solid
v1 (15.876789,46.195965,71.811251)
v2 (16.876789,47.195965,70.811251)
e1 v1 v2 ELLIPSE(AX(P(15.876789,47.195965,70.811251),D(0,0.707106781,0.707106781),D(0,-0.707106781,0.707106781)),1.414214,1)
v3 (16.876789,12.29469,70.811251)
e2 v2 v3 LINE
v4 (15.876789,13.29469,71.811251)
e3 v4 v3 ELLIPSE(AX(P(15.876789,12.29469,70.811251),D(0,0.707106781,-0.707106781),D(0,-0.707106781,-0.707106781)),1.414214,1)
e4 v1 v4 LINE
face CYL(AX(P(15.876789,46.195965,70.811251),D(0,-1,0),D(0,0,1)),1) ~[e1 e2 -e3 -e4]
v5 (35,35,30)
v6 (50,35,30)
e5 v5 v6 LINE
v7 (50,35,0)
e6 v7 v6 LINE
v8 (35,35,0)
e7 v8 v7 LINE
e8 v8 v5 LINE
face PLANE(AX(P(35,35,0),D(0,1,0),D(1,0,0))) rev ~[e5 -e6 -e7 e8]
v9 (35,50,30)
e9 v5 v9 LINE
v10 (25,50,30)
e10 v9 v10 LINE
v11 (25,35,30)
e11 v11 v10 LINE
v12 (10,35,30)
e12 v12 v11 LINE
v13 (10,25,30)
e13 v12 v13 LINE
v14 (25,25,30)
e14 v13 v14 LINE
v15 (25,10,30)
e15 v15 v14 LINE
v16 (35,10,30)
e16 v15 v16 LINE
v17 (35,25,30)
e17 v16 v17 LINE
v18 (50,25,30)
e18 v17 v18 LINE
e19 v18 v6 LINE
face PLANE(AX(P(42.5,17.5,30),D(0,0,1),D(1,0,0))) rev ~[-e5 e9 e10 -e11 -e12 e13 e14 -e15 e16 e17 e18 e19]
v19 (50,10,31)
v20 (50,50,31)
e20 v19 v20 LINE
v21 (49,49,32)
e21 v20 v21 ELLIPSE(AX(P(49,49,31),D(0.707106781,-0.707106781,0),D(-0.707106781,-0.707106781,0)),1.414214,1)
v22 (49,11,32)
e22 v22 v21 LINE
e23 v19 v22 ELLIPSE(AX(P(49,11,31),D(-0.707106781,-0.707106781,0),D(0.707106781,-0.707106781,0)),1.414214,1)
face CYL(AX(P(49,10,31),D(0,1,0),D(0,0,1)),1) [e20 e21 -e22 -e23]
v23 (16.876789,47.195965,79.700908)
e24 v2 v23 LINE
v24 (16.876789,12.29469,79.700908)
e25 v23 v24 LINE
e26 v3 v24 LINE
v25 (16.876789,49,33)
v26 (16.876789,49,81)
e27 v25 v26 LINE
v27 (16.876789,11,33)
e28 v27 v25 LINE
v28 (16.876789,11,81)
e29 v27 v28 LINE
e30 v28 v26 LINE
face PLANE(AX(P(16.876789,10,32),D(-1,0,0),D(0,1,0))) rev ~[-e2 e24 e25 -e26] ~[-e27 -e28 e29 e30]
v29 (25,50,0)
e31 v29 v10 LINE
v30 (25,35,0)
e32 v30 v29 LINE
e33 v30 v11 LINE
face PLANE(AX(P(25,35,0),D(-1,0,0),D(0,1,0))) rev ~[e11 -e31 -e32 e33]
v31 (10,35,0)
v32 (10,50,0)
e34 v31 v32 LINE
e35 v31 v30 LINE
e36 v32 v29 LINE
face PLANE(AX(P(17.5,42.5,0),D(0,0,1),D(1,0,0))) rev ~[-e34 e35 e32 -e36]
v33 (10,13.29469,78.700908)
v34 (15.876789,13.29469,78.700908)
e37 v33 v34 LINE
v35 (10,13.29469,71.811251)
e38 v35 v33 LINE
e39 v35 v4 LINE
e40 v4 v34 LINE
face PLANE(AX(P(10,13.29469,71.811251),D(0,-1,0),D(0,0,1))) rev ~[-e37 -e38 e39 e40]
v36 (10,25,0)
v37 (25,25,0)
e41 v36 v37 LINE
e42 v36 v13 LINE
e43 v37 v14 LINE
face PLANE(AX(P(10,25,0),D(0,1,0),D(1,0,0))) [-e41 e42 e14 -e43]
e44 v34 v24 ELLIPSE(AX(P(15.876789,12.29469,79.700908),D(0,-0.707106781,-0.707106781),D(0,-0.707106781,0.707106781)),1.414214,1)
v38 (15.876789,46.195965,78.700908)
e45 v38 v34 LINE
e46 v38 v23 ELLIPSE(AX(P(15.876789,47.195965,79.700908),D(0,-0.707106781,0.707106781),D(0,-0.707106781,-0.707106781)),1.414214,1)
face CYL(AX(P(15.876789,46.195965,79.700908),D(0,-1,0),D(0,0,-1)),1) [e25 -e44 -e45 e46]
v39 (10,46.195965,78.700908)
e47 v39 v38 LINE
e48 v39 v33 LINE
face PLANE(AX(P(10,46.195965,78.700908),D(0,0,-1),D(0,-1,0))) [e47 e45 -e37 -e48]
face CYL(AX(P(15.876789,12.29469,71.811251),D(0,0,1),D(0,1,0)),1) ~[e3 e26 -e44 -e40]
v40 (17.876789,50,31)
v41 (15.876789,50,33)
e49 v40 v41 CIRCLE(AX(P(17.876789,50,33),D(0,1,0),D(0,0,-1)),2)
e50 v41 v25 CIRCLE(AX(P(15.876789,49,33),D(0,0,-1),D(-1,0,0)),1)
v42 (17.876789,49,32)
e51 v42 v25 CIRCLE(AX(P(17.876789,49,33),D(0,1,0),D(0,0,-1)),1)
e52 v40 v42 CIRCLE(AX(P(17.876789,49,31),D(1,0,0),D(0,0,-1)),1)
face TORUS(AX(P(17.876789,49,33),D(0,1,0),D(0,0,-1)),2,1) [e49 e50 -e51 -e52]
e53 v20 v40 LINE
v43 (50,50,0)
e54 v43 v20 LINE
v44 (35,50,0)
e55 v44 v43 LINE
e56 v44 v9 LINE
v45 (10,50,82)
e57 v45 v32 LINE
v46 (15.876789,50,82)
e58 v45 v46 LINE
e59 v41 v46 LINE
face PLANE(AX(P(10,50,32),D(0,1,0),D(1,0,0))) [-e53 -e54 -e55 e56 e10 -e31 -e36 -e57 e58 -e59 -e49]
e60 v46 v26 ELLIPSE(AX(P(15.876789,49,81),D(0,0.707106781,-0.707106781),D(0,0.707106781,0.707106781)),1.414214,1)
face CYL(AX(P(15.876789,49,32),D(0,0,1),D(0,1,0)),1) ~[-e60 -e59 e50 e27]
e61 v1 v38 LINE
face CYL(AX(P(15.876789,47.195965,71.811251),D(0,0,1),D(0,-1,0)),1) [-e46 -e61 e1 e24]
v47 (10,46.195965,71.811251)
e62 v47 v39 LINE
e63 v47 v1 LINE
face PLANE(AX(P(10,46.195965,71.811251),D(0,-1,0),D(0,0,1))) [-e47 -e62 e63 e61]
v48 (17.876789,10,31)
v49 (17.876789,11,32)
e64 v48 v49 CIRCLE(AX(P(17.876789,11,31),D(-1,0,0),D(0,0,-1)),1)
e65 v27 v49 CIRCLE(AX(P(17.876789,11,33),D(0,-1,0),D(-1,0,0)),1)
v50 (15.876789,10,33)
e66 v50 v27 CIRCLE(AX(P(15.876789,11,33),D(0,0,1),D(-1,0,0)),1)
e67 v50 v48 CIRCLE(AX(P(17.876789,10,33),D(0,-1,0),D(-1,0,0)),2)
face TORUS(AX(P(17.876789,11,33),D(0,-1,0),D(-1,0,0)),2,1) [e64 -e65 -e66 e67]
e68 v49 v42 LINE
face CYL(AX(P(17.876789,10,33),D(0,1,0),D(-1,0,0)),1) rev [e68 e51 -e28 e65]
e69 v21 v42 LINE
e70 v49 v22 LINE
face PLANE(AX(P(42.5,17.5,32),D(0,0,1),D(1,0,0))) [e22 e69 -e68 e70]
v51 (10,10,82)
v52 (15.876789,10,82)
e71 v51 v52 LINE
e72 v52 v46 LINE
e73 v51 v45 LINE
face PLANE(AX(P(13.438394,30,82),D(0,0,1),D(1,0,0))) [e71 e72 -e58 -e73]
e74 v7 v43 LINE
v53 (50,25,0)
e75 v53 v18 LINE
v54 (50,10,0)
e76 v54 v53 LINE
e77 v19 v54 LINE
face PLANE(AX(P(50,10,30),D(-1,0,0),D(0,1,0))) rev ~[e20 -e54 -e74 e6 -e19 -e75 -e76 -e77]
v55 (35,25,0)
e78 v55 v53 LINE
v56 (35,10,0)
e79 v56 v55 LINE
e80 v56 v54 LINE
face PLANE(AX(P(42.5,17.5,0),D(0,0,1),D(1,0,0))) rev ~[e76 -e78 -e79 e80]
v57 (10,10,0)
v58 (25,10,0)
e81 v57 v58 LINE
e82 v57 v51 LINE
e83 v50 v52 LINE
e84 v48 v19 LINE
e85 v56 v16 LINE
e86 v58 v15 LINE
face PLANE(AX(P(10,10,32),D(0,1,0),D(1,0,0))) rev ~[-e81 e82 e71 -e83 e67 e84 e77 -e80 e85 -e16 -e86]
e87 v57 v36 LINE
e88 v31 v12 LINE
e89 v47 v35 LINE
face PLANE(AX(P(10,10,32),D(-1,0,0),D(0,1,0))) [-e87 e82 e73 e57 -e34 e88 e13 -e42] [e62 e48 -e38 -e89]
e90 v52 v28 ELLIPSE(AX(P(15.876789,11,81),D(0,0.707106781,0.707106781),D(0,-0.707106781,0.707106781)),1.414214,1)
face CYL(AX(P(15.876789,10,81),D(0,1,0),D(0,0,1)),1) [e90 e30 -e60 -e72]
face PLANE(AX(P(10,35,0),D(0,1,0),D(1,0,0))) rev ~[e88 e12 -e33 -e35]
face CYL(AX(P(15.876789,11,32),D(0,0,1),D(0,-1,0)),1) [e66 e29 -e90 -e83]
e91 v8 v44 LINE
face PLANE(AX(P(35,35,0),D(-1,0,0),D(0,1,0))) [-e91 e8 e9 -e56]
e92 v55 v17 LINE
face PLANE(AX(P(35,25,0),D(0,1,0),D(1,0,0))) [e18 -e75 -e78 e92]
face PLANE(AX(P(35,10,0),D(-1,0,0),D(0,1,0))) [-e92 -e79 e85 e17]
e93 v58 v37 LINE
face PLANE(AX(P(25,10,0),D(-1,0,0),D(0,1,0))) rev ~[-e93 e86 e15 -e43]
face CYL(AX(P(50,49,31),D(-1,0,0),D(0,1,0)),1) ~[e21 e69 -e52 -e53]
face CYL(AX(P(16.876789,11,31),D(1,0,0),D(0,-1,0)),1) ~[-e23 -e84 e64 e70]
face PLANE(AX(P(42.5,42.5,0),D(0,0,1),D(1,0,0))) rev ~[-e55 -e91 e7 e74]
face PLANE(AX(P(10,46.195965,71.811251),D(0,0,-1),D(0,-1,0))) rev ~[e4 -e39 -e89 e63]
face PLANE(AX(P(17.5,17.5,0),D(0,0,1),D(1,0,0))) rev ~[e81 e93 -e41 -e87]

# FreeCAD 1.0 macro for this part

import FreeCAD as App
import Part
import Sketcher
Q = App.Units.Quantity


def edges_at(feature, points):
    """Names of the edges that pass closest to the given points."""
    edges = feature.Shape.Edges
    near = lambda p: min(range(len(edges)), key=lambda i: edges[i].distToShape(Part.Vertex(*p))[0])
    return sorted({f"Edge{near(p) + 1}" for p in points})

doc = App.newDocument("Part")
params = doc.addObject("Spreadsheet::Sheet", "Params")
for row, (alias, value) in enumerate([
    ("sketch1_width", "15 mm"),
    ("pad1_length", "30 mm"),
    ("sketch2_width", "15 mm"),
    ("pad2_length", "30 mm"),
    ("sketch3_width", "15 mm"),
    ("pad3_length", "30 mm"),
    ("sketch4_width", "15 mm"),
    ("pad4_length", "30 mm"),
    ("sketch5_width", "40 mm"),
    ("pad5_length", "2 mm"),
    ("sketch6_height", "40 mm"),
    ("pad6_length", "50 mm"),
    ("pocket1_length", "30 mm"),
    ("fillet_radius", "1 mm"),
], start=1):
    params.set(f"A{row}", alias)
    params.set(f"B{row}", "=" + value)
    params.setAlias(f"B{row}", alias)

body = doc.addObject("PartDesign::Body", "Body")

sketch1 = body.newObject("Sketcher::SketchObject", "Sketch")
sketch1.AttachmentSupport = (doc.getObject("XY_Plane"), [""])
sketch1.MapMode = "FlatFace"
sketch1.addGeometry(Part.LineSegment(App.Vector(35, 25, 0), App.Vector(35, 10, 0)), False)
sketch1.addGeometry(Part.LineSegment(App.Vector(35, 10, 0), App.Vector(50, 10, 0)), False)
sketch1.addGeometry(Part.LineSegment(App.Vector(50, 10, 0), App.Vector(50, 25, 0)), False)
sketch1.addGeometry(Part.LineSegment(App.Vector(50, 25, 0), App.Vector(35, 25, 0)), False)
sketch1.addConstraint(Sketcher.Constraint("Coincident", 0, 2, 1, 1))
sketch1.addConstraint(Sketcher.Constraint("Coincident", 1, 2, 2, 1))
sketch1.addConstraint(Sketcher.Constraint("Coincident", 2, 2, 3, 1))
sketch1.addConstraint(Sketcher.Constraint("Coincident", 3, 2, 0, 1))
sketch1.addConstraint(Sketcher.Constraint("Vertical", 0))
sketch1.addConstraint(Sketcher.Constraint("Horizontal", 1))
sketch1.addConstraint(Sketcher.Constraint("Vertical", 2))
sketch1.addConstraint(Sketcher.Constraint("Horizontal", 3))
sketch1.addConstraint(Sketcher.Constraint("Equal", 3, 0))
sketch1.addConstraint(Sketcher.Constraint("DistanceX", 1, 1, 1, 2, Q("15 mm")))
sketch1.addConstraint(Sketcher.Constraint("DistanceX", -1, 1, 0, 2, Q("35 mm")))
sketch1.addConstraint(Sketcher.Constraint("DistanceY", -1, 1, 0, 2, Q("10 mm")))
sketch1.setExpression("Constraints[9]", "Params.sketch1_width")
pad1 = body.newObject("PartDesign::Pad", "Pad")
pad1.Profile = sketch1
pad1.setExpression("Length", "Params.pad1_length")
body2 = doc.addObject("PartDesign::Body", "Body001")

sketch2 = body2.newObject("Sketcher::SketchObject", "Sketch001")
sketch2.AttachmentSupport = (doc.getObject("XY_Plane001"), [""])
sketch2.MapMode = "FlatFace"
sketch2.addGeometry(Part.LineSegment(App.Vector(10, 25, 0), App.Vector(10, 10, 0)), False)
sketch2.addGeometry(Part.LineSegment(App.Vector(10, 10, 0), App.Vector(25, 10, 0)), False)
sketch2.addGeometry(Part.LineSegment(App.Vector(25, 10, 0), App.Vector(25, 25, 0)), False)
sketch2.addGeometry(Part.LineSegment(App.Vector(25, 25, 0), App.Vector(10, 25, 0)), False)
sketch2.addConstraint(Sketcher.Constraint("Coincident", 0, 2, 1, 1))
sketch2.addConstraint(Sketcher.Constraint("Coincident", 1, 2, 2, 1))
sketch2.addConstraint(Sketcher.Constraint("Coincident", 2, 2, 3, 1))
sketch2.addConstraint(Sketcher.Constraint("Coincident", 3, 2, 0, 1))
sketch2.addConstraint(Sketcher.Constraint("Vertical", 0))
sketch2.addConstraint(Sketcher.Constraint("Horizontal", 1))
sketch2.addConstraint(Sketcher.Constraint("Vertical", 2))
sketch2.addConstraint(Sketcher.Constraint("Horizontal", 3))
sketch2.addConstraint(Sketcher.Constraint("Equal", 3, 0))
sketch2.addConstraint(Sketcher.Constraint("DistanceX", 1, 1, 1, 2, Q("15 mm")))
sketch2.addConstraint(Sketcher.Constraint("DistanceX", -1, 1, 0, 2, Q("10 mm")))
sketch2.addConstraint(Sketcher.Constraint("DistanceY", -1, 1, 0, 2, Q("10 mm")))
sketch2.setExpression("Constraints[9]", "Params.sketch2_width")
pad2 = body2.newObject("PartDesign::Pad", "Pad001")
pad2.Profile = sketch2
pad2.setExpression("Length", "Params.pad2_length")
body3 = doc.addObject("PartDesign::Body", "Body002")

sketch3 = body3.newObject("Sketcher::SketchObject", "Sketch002")
sketch3.AttachmentSupport = (doc.getObject("XY_Plane002"), [""])
sketch3.MapMode = "FlatFace"
sketch3.addGeometry(Part.LineSegment(App.Vector(10, 50, 0), App.Vector(10, 35, 0)), False)
sketch3.addGeometry(Part.LineSegment(App.Vector(10, 35, 0), App.Vector(25, 35, 0)), False)
sketch3.addGeometry(Part.LineSegment(App.Vector(25, 35, 0), App.Vector(25, 50, 0)), False)
sketch3.addGeometry(Part.LineSegment(App.Vector(25, 50, 0), App.Vector(10, 50, 0)), False)
sketch3.addConstraint(Sketcher.Constraint("Coincident", 0, 2, 1, 1))
sketch3.addConstraint(Sketcher.Constraint("Coincident", 1, 2, 2, 1))
sketch3.addConstraint(Sketcher.Constraint("Coincident", 2, 2, 3, 1))
sketch3.addConstraint(Sketcher.Constraint("Coincident", 3, 2, 0, 1))
sketch3.addConstraint(Sketcher.Constraint("Vertical", 0))
sketch3.addConstraint(Sketcher.Constraint("Horizontal", 1))
sketch3.addConstraint(Sketcher.Constraint("Vertical", 2))
sketch3.addConstraint(Sketcher.Constraint("Horizontal", 3))
sketch3.addConstraint(Sketcher.Constraint("Equal", 3, 0))
sketch3.addConstraint(Sketcher.Constraint("DistanceX", 1, 1, 1, 2, Q("15 mm")))
sketch3.addConstraint(Sketcher.Constraint("DistanceX", -1, 1, 0, 2, Q("10 mm")))
sketch3.addConstraint(Sketcher.Constraint("DistanceY", -1, 1, 0, 2, Q("35 mm")))
sketch3.setExpression("Constraints[9]", "Params.sketch3_width")
pad3 = body3.newObject("PartDesign::Pad", "Pad002")
pad3.Profile = sketch3
pad3.setExpression("Length", "Params.pad3_length")
body4 = doc.addObject("PartDesign::Body", "Body003")

sketch4 = body4.newObject("Sketcher::SketchObject", "Sketch003")
sketch4.AttachmentSupport = (doc.getObject("XY_Plane003"), [""])
sketch4.MapMode = "FlatFace"
sketch4.addGeometry(Part.LineSegment(App.Vector(35, 50, 0), App.Vector(35, 35, 0)), False)
sketch4.addGeometry(Part.LineSegment(App.Vector(35, 35, 0), App.Vector(50, 35, 0)), False)
sketch4.addGeometry(Part.LineSegment(App.Vector(50, 35, 0), App.Vector(50, 50, 0)), False)
sketch4.addGeometry(Part.LineSegment(App.Vector(50, 50, 0), App.Vector(35, 50, 0)), False)
sketch4.addConstraint(Sketcher.Constraint("Coincident", 0, 2, 1, 1))
sketch4.addConstraint(Sketcher.Constraint("Coincident", 1, 2, 2, 1))
sketch4.addConstraint(Sketcher.Constraint("Coincident", 2, 2, 3, 1))
sketch4.addConstraint(Sketcher.Constraint("Coincident", 3, 2, 0, 1))
sketch4.addConstraint(Sketcher.Constraint("Vertical", 0))
sketch4.addConstraint(Sketcher.Constraint("Horizontal", 1))
sketch4.addConstraint(Sketcher.Constraint("Vertical", 2))
sketch4.addConstraint(Sketcher.Constraint("Horizontal", 3))
sketch4.addConstraint(Sketcher.Constraint("Equal", 3, 0))
sketch4.addConstraint(Sketcher.Constraint("DistanceX", 1, 1, 1, 2, Q("15 mm")))
sketch4.addConstraint(Sketcher.Constraint("DistanceX", -1, 1, 0, 2, Q("35 mm")))
sketch4.addConstraint(Sketcher.Constraint("DistanceY", -1, 1, 0, 2, Q("35 mm")))
sketch4.setExpression("Constraints[9]", "Params.sketch4_width")
pad4 = body4.newObject("PartDesign::Pad", "Pad003")
pad4.Profile = sketch4
pad4.setExpression("Length", "Params.pad4_length")
body.AllowCompound = True
doc.recompute()

boolean = body.newObject("PartDesign::Boolean", "Boolean")
boolean.Type = "Fuse"
boolean.addObjects([body2])
doc.recompute()

boolean2 = body.newObject("PartDesign::Boolean", "Boolean001")
boolean2.Type = "Fuse"
boolean2.addObjects([body3])
doc.recompute()

boolean3 = body.newObject("PartDesign::Boolean", "Boolean002")
boolean3.Type = "Fuse"
boolean3.addObjects([body4])

sketch5 = body.newObject("Sketcher::SketchObject", "Sketch004")
sketch5.AttachmentSupport = (doc.getObject("XY_Plane"), [""])
sketch5.MapMode = "FlatFace"
sketch5.AttachmentOffset = App.Placement(App.Vector(0, 0, 30), App.Rotation())
sketch5.addGeometry(Part.LineSegment(App.Vector(50, 10, 0), App.Vector(50, 50, 0)), False)
sketch5.addGeometry(Part.LineSegment(App.Vector(50, 50, 0), App.Vector(10, 50, 0)), False)
sketch5.addGeometry(Part.LineSegment(App.Vector(10, 50, 0), App.Vector(10, 10, 0)), False)
sketch5.addGeometry(Part.LineSegment(App.Vector(10, 10, 0), App.Vector(50, 10, 0)), False)
sketch5.addConstraint(Sketcher.Constraint("Coincident", 0, 2, 1, 1))
sketch5.addConstraint(Sketcher.Constraint("Coincident", 1, 2, 2, 1))
sketch5.addConstraint(Sketcher.Constraint("Coincident", 2, 2, 3, 1))
sketch5.addConstraint(Sketcher.Constraint("Coincident", 3, 2, 0, 1))
sketch5.addConstraint(Sketcher.Constraint("Vertical", 0))
sketch5.addConstraint(Sketcher.Constraint("Horizontal", 1))
sketch5.addConstraint(Sketcher.Constraint("Vertical", 2))
sketch5.addConstraint(Sketcher.Constraint("Horizontal", 3))
sketch5.addConstraint(Sketcher.Constraint("Equal", 3, 0))
sketch5.addConstraint(Sketcher.Constraint("DistanceX", 1, 2, 1, 1, Q("40 mm")))
sketch5.addConstraint(Sketcher.Constraint("DistanceX", -1, 1, 0, 2, Q("50 mm")))
sketch5.addConstraint(Sketcher.Constraint("DistanceY", -1, 1, 0, 2, Q("50 mm")))
sketch5.setExpression("Constraints[9]", "Params.sketch5_width")
pad5 = body.newObject("PartDesign::Pad", "Pad004")
pad5.Profile = sketch5
pad5.setExpression("Length", "Params.pad5_length")

sketch6 = body.newObject("Sketcher::SketchObject", "Sketch005")
sketch6.AttachmentSupport = (doc.getObject("XY_Plane"), [""])
sketch6.MapMode = "FlatFace"
sketch6.AttachmentOffset = App.Placement(App.Vector(0, 0, 32), App.Rotation())
sketch6.addGeometry(Part.LineSegment(App.Vector(10, 50, 0), App.Vector(10, 10, 0)), False)
sketch6.addGeometry(Part.LineSegment(App.Vector(10, 10, 0), App.Vector(17, 10, 0)), False)
sketch6.addGeometry(Part.LineSegment(App.Vector(17, 10, 0), App.Vector(17, 50, 0)), False)
sketch6.addGeometry(Part.LineSegment(App.Vector(17, 50, 0), App.Vector(10, 50, 0)), False)
sketch6.addConstraint(Sketcher.Constraint("Coincident", 0, 2, 1, 1))
sketch6.addConstraint(Sketcher.Constraint("Coincident", 1, 2, 2, 1))
sketch6.addConstraint(Sketcher.Constraint("Coincident", 2, 2, 3, 1))
sketch6.addConstraint(Sketcher.Constraint("Coincident", 3, 2, 0, 1))
sketch6.addConstraint(Sketcher.Constraint("Vertical", 0))
sketch6.addConstraint(Sketcher.Constraint("Horizontal", 1))
sketch6.addConstraint(Sketcher.Constraint("Vertical", 2))
sketch6.addConstraint(Sketcher.Constraint("Horizontal", 3))
sketch6.addConstraint(Sketcher.Constraint("DistanceY", 0, 2, 0, 1, Q("40 mm")))
sketch6.addConstraint(Sketcher.Constraint("DistanceX", -1, 1, 0, 2, Q("10 mm")))
sketch6.addConstraint(Sketcher.Constraint("DistanceY", -1, 1, 0, 2, Q("10 mm")))
sketch6.addConstraint(Sketcher.Constraint("DistanceX", 1, 1, 1, 2, Q("6.876789 mm")))
sketch6.setExpression("Constraints[8]", "Params.sketch6_height")
pad6 = body.newObject("PartDesign::Pad", "Pad005")
pad6.Profile = sketch6
pad6.setExpression("Length", "Params.pad6_length")

sketch7 = body.newObject("Sketcher::SketchObject", "Sketch006")
sketch7.AttachmentSupport = (doc.getObject("YZ_Plane"), [""])
sketch7.MapMode = "FlatFace"
sketch7.AttachmentOffset = App.Placement(App.Vector(0, 0, 10), App.Rotation())
sketch7.addGeometry(Part.LineSegment(App.Vector(46, 79, 0), App.Vector(46, 72, 0)), False)
sketch7.addGeometry(Part.LineSegment(App.Vector(46, 72, 0), App.Vector(13, 72, 0)), False)
sketch7.addGeometry(Part.LineSegment(App.Vector(13, 72, 0), App.Vector(13, 79, 0)), False)
sketch7.addGeometry(Part.LineSegment(App.Vector(13, 79, 0), App.Vector(46, 79, 0)), False)
sketch7.addConstraint(Sketcher.Constraint("Coincident", 0, 2, 1, 1))
sketch7.addConstraint(Sketcher.Constraint("Coincident", 1, 2, 2, 1))
sketch7.addConstraint(Sketcher.Constraint("Coincident", 2, 2, 3, 1))
sketch7.addConstraint(Sketcher.Constraint("Coincident", 3, 2, 0, 1))
sketch7.addConstraint(Sketcher.Constraint("Vertical", 0))
sketch7.addConstraint(Sketcher.Constraint("Horizontal", 1))
sketch7.addConstraint(Sketcher.Constraint("Vertical", 2))
sketch7.addConstraint(Sketcher.Constraint("Horizontal", 3))
sketch7.addConstraint(Sketcher.Constraint("DistanceX", 1, 2, 1, 1, Q("32.901275 mm")))
sketch7.addConstraint(Sketcher.Constraint("DistanceY", 0, 2, 0, 1, Q("6.889656 mm")))
sketch7.addConstraint(Sketcher.Constraint("DistanceY", -1, 1, 0, 2, Q("71.811251 mm")))
sketch7.addConstraint(Sketcher.Constraint("DistanceX", -1, 1, 1, 2, Q("13.29469 mm")))
pocket1 = body.newObject("PartDesign::Pocket", "Pocket")
pocket1.Profile = sketch7
pocket1.setExpression("Length", "Params.pocket1_length")
pocket1.Reversed = True
doc.recompute()

fillet = body.newObject("PartDesign::Fillet", "Fillet")
fillet.Base = (pocket1, edges_at(pocket1, [
    (33.438, 10, 32),
    (16.877, 30, 32),
    (33.438, 50, 32),
    (50, 30, 32),
    (16.877, 10, 57),
    (16.877, 30, 82),
    (16.877, 50, 57),
    (16.877, 29.745, 78.701),
    (16.877, 46.196, 75.256),
    (16.877, 29.745, 71.811),
    (16.877, 13.295, 75.256),
]))
fillet.setExpression("Radius", "Params.fillet_radius")

doc.recompute()
